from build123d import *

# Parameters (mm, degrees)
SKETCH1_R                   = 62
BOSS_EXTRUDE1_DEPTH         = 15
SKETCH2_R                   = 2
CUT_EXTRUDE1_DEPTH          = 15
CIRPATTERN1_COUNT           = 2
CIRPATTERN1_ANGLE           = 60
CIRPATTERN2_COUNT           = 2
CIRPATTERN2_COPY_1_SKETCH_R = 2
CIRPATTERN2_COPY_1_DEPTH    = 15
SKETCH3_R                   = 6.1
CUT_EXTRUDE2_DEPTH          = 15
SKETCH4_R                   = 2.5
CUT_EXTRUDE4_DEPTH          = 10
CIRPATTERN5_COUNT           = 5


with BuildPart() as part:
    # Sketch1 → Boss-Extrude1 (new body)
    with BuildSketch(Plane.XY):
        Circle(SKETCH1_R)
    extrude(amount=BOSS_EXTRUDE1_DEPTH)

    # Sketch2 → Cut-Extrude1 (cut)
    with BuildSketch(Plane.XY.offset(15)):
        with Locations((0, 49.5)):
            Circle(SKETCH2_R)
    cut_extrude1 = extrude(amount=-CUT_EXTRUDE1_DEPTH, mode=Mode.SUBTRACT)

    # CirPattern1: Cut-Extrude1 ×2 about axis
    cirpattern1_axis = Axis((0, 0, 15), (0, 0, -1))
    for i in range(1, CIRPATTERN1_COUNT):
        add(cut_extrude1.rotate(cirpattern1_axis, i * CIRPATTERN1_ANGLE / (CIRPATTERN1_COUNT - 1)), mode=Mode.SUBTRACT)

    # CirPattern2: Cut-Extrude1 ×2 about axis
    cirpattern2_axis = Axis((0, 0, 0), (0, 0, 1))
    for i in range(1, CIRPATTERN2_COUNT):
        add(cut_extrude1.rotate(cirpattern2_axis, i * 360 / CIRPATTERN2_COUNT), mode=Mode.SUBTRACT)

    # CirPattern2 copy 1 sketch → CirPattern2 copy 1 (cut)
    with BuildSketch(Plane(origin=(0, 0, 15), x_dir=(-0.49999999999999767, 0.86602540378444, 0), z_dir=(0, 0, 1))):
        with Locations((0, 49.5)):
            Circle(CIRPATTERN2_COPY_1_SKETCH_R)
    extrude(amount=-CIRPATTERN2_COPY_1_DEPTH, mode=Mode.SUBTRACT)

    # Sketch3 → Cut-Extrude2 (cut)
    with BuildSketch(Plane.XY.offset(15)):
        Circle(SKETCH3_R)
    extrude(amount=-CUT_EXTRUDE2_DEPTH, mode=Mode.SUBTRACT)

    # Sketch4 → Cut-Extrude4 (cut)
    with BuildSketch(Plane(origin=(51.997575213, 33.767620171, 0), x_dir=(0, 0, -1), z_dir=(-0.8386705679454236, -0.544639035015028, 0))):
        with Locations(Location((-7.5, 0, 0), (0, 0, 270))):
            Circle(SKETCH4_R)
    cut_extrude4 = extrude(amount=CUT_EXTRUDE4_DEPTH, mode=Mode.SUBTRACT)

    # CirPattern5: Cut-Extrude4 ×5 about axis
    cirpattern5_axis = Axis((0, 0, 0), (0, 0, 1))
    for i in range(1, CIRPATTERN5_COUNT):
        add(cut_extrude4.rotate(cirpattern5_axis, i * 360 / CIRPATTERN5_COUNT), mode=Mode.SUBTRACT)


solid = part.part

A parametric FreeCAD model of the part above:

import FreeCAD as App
import Part
import Sketcher

doc = App.newDocument("Part")
body = doc.addObject("PartDesign::Body", "Body")

# Sketch on XY plane
sketch1 = doc.addObject("Sketcher::SketchObject", "Sketch")
body.addObject(sketch1)
sketch1.AttachmentSupport = (doc.XY_Plane, [""])
sketch1.MapMode = "FlatFace"
sketch1.addGeometry(Part.Circle(App.Vector(0, 0, 0), App.Vector(0, 0, 1), 62), False)
sketch1.addConstraint([
    Sketcher.Constraint("Coincident", 0, 3, -1, 1),
    Sketcher.Constraint("Diameter", 0, 124.0),
])
pad1 = doc.addObject("PartDesign::Pad", "Pad")
body.addObject(pad1)
pad1.Profile = sketch1
pad1.Length = 15

# Sketch on XY plane
sketch2 = doc.addObject("Sketcher::SketchObject", "Sketch001")
body.addObject(sketch2)
sketch2.AttachmentSupport = (doc.XY_Plane, [""])
sketch2.MapMode = "FlatFace"
sketch2.AttachmentOffset = App.Placement(App.Vector(0, 0, 15), App.Rotation())
sketch2.addGeometry(Part.Circle(App.Vector(0, 49.5, 0), App.Vector(0, 0, 1), 2), False)
sketch2.addConstraint([
    Sketcher.Constraint("PointOnObject", 0, 3, -2),
    Sketcher.Constraint("Diameter", 0, 4.0),
    Sketcher.Constraint("DistanceY", -1, 1, 0, 3, 49.5),
])
pocket1 = doc.addObject("PartDesign::Pocket", "Pocket")
body.addObject(pocket1)
pocket1.Profile = sketch2
pocket1.Length = 15
doc.recompute()

polarpattern = doc.addObject("PartDesign::PolarPattern", "PolarPattern")
body.addObject(polarpattern)
polarpattern.Originals = [pocket1]
polarpattern.Axis = (doc.Z_Axis, [""])
polarpattern.Angle = 60
polarpattern.Occurrences = 2
polarpattern.Reversed = True
body.Tip = polarpattern
doc.recompute()

polarpattern2 = doc.addObject("PartDesign::PolarPattern", "PolarPattern001")
body.addObject(polarpattern2)
polarpattern2.Originals = [pocket1]
polarpattern2.Axis = (doc.Z_Axis, [""])
polarpattern2.Angle = 360
polarpattern2.Occurrences = 2
body.Tip = polarpattern2

# Sketch on XY plane
sketch3 = doc.addObject("Sketcher::SketchObject", "Sketch002")
body.addObject(sketch3)
sketch3.AttachmentSupport = (doc.XY_Plane, [""])
sketch3.MapMode = "FlatFace"
sketch3.AttachmentOffset = App.Placement(App.Vector(0, 0, 15), App.Rotation())
sketch3.addGeometry(Part.Circle(App.Vector(-42.9, -24.8, 0), App.Vector(0, 0, 1), 2), False)
sketch3.addConstraint([
    Sketcher.Constraint("Diameter", 0, 4.0),
    Sketcher.Constraint("DistanceY", 0, 3, -1, 1, 24.75),
    Sketcher.Constraint("DistanceX", 0, 3, -1, 1, 42.868257),
])
pocket2 = doc.addObject("PartDesign::Pocket", "Pocket001")
body.addObject(pocket2)
pocket2.Profile = sketch3
pocket2.Length = 15

# Sketch on XY plane
sketch4 = doc.addObject("Sketcher::SketchObject", "Sketch003")
body.addObject(sketch4)
sketch4.AttachmentSupport = (doc.XY_Plane, [""])
sketch4.MapMode = "FlatFace"
sketch4.AttachmentOffset = App.Placement(App.Vector(0, 0, 15), App.Rotation())
sketch4.addGeometry(Part.Circle(App.Vector(0, 0, 0), App.Vector(0, 0, 1), 6), False)
sketch4.addConstraint([
    Sketcher.Constraint("Coincident", 0, 3, -1, 1),
    Sketcher.Constraint("Diameter", 0, 12.2),
])
pocket3 = doc.addObject("PartDesign::Pocket", "Pocket002")
body.addObject(pocket3)
pocket3.Profile = sketch4
pocket3.Length = 15

# Sketch on an angled plane
sketch5 = doc.addObject("Sketcher::SketchObject", "Sketch004")
body.addObject(sketch5)
sketch5.Placement = App.Placement(App.Vector(51.997575, 33.76762, 0), App.Rotation(App.Vector(0, 0, -1), App.Vector(0.544639035, -0.838670568, 0), App.Vector(-0.838670568, -0.544639035, 0), "ZXY"))
sketch5.addGeometry(Part.Circle(App.Vector(-7.5, 0, 0), App.Vector(0, 0, 1), 2.5), False)
sketch5.addConstraint([
    Sketcher.Constraint("PointOnObject", 0, 3, -1),
    Sketcher.Constraint("Diameter", 0, 5.0),
    Sketcher.Constraint("DistanceX", 0, 3, -1, 1, 7.5),
])
pocket4 = doc.addObject("PartDesign::Pocket", "Pocket003")
body.addObject(pocket4)
pocket4.Profile = sketch5
pocket4.Length = 10
pocket4.Reversed = True
doc.recompute()

polarpattern3 = doc.addObject("PartDesign::PolarPattern", "PolarPattern002")
body.addObject(polarpattern3)
polarpattern3.Originals = [pocket4]
polarpattern3.Axis = (doc.Z_Axis, [""])
polarpattern3.Angle = 360
polarpattern3.Occurrences = 5
body.Tip = polarpattern3

doc.recompute()
